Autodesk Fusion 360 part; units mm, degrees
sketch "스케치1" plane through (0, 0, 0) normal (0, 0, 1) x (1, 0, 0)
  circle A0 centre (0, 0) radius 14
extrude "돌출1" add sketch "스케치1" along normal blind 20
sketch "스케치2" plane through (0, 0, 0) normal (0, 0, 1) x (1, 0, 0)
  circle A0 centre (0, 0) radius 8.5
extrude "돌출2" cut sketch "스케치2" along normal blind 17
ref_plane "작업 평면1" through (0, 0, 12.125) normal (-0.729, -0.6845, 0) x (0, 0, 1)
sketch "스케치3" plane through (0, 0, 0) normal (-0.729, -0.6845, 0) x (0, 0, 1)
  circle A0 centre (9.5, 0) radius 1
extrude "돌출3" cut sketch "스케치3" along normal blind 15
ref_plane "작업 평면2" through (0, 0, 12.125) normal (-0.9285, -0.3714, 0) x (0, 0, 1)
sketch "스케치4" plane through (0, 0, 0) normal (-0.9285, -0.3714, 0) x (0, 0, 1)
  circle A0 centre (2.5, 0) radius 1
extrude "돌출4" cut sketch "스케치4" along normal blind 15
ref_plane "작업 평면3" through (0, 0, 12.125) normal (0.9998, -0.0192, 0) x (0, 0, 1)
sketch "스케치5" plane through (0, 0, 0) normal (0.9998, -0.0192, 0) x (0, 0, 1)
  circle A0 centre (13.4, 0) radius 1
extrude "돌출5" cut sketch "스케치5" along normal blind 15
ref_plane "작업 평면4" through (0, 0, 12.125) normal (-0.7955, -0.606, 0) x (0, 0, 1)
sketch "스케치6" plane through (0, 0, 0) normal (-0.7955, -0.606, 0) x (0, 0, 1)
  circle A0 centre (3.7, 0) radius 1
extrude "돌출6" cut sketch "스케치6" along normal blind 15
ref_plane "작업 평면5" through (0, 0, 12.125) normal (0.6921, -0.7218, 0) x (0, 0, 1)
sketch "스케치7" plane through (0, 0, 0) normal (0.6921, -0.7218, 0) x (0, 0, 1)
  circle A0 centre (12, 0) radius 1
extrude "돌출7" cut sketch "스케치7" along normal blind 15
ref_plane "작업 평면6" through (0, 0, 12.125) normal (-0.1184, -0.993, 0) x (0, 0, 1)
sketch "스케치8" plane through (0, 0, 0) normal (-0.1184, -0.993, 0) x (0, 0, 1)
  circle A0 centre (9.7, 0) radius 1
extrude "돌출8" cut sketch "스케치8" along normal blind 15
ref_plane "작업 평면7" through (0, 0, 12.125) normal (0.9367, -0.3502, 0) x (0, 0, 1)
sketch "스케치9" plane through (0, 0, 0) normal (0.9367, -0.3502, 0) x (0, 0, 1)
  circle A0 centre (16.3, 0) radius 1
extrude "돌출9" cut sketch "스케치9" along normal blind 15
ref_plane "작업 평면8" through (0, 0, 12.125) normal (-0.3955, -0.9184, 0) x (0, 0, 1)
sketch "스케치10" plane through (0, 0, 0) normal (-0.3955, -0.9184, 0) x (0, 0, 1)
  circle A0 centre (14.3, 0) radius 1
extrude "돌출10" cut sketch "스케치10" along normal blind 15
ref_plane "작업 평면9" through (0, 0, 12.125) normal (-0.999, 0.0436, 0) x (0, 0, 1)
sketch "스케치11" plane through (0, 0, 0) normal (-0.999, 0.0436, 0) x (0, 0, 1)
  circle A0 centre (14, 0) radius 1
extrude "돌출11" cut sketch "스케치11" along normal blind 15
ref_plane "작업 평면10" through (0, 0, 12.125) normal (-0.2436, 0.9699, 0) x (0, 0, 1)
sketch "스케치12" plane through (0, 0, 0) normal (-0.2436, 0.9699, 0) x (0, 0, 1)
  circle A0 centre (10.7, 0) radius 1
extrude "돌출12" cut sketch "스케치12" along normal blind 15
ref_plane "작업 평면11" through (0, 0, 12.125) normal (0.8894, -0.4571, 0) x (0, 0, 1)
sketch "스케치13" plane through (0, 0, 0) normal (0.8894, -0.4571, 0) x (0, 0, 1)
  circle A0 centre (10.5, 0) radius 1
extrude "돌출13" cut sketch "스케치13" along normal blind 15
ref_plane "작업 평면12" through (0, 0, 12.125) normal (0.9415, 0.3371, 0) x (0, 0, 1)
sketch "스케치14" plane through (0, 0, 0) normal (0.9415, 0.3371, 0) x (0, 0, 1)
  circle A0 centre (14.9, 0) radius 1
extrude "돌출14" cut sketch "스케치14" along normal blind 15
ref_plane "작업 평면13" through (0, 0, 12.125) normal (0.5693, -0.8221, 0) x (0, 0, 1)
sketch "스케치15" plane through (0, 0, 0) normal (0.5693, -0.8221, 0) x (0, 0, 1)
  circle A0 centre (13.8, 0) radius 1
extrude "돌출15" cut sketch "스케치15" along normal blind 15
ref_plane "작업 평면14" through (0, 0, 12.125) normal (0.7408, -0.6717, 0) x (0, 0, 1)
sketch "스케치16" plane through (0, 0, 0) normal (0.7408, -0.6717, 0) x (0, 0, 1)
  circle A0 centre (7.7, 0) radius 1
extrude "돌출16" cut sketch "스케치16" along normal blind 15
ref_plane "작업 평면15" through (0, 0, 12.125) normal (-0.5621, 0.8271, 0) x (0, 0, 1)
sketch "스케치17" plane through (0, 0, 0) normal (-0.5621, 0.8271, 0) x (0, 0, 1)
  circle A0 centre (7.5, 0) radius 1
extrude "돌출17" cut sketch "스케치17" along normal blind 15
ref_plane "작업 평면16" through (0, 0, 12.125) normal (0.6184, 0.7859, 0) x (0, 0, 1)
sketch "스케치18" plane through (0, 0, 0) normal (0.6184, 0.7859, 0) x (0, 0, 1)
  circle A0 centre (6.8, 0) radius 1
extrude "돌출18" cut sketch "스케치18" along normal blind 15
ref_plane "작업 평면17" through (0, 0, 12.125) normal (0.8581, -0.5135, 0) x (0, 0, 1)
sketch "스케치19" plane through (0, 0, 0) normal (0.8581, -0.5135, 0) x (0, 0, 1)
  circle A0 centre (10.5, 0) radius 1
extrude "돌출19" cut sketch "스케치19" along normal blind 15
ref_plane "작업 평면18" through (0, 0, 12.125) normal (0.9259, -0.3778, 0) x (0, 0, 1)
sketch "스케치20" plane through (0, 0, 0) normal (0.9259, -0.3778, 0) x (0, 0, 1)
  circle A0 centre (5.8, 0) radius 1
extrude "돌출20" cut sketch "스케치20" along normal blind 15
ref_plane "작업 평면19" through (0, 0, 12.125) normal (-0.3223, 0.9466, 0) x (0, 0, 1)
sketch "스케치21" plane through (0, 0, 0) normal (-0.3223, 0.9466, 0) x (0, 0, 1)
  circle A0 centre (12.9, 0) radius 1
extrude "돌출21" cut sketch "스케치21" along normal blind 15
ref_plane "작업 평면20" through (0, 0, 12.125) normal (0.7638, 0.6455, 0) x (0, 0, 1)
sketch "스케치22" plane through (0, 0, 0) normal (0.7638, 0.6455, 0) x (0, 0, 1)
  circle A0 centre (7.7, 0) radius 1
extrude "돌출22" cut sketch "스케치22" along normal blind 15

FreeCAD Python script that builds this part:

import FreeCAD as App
import Part
import Sketcher
from FreeCAD import Vector
Q = App.Units.Quantity

doc = App.newDocument("Part")
params = doc.addObject("Spreadsheet::Sheet", "Params")
for row, (alias, value) in enumerate([
    ("sketch1_diameter", "28 mm"),
    ("pad1_length", "20 mm"),
    ("sketch2_diameter", "17 mm"),
    ("pocket1_length", "17 mm"),
    ("sketch3_diameter", "2 mm"),
    ("pocket2_length", "15 mm"),
    ("sketch4_diameter", "2 mm"),
    ("pocket3_length", "15 mm"),
    ("sketch5_diameter", "2 mm"),
    ("pocket4_length", "15 mm"),
    ("sketch6_diameter", "2 mm"),
    ("pocket5_length", "15 mm"),
    ("sketch7_diameter", "2 mm"),
    ("pocket6_length", "15 mm"),
    ("sketch8_diameter", "2 mm"),
    ("pocket7_length", "15 mm"),
    ("sketch9_diameter", "2 mm"),
    ("pocket8_length", "15 mm"),
    ("sketch10_diameter", "2 mm"),
    ("pocket9_length", "15 mm"),
    ("sketch11_diameter", "2 mm"),
    ("pocket10_length", "15 mm"),
    ("sketch12_diameter", "2 mm"),
    ("pocket11_length", "15 mm"),
    ("sketch13_diameter", "2 mm"),
    ("pocket12_length", "15 mm"),
    ("sketch14_diameter", "2 mm"),
    ("pocket13_length", "15 mm"),
    ("sketch15_diameter", "2 mm"),
    ("pocket14_length", "15 mm"),
    ("sketch16_diameter", "2 mm"),
    ("pocket15_length", "15 mm"),
    ("sketch17_diameter", "2 mm"),
    ("pocket16_length", "15 mm"),
    ("sketch18_diameter", "2 mm"),
    ("pocket17_length", "15 mm"),
    ("sketch19_diameter", "2 mm"),
    ("pocket18_length", "15 mm"),
    ("sketch20_diameter", "2 mm"),
    ("pocket19_length", "15 mm"),
    ("sketch21_diameter", "2 mm"),
    ("pocket20_length", "15 mm"),
    ("sketch22_diameter", "2 mm"),
    ("pocket21_length", "15 mm"),
], start=1):
    params.set(f"A{row}", alias)
    params.set(f"B{row}", "=" + value)
    params.setAlias(f"B{row}", alias)

body = doc.addObject("PartDesign::Body", "Body")

sketch1 = body.newObject("Sketcher::SketchObject", "Sketch")
sketch1.AttachmentSupport = (doc.getObject("XY_Plane"), [""])
sketch1.MapMode = "FlatFace"
sketch1.addGeometry(Part.Circle(Vector(0, 0, 0), Vector(0, 0, 1), 14), False)
sketch1.addConstraint([
    Sketcher.Constraint("Coincident", 0, 3, -1, 1),
    Sketcher.Constraint("Diameter", 0, Q("28 mm")),
])
sketch1.setExpression("Constraints[1]", "Params.sketch1_diameter")
pad1 = body.newObject("PartDesign::Pad", "Pad")
pad1.Profile = sketch1
pad1.setExpression("Length", "Params.pad1_length")

sketch2 = body.newObject("Sketcher::SketchObject", "Sketch001")
sketch2.AttachmentSupport = (doc.getObject("XY_Plane"), [""])
sketch2.MapMode = "FlatFace"
sketch2.addGeometry(Part.Circle(Vector(0, 0, 0), Vector(0, 0, 1), 8), False)
sketch2.addConstraint([
    Sketcher.Constraint("Coincident", 0, 3, -1, 1),
    Sketcher.Constraint("Diameter", 0, Q("17 mm")),
])
sketch2.setExpression("Constraints[1]", "Params.sketch2_diameter")
pocket1 = body.newObject("PartDesign::Pocket", "Pocket")
pocket1.Profile = sketch2
pocket1.setExpression("Length", "Params.pocket1_length")
pocket1.Reversed = True

sketch3 = body.newObject("Sketcher::SketchObject", "Sketch002")
sketch3.Placement = App.Placement(Vector(0, 0, 0), App.Rotation(Vector(0, 0, 1), Vector(-0.684506417, 0.729006834, 0), Vector(-0.729006834, -0.684506417, 0), "ZXY"))
sketch3.addGeometry(Part.Circle(Vector(9.5, 0, 0), Vector(0, 0, 1), 1), False)
sketch3.addConstraint([
    Sketcher.Constraint("PointOnObject", 0, 3, -1),
    Sketcher.Constraint("Diameter", 0, Q("2 mm")),
    Sketcher.Constraint("DistanceX", -1, 1, 0, 3, Q("9.5 mm")),
])
sketch3.setExpression("Constraints[1]", "Params.sketch3_diameter")
pocket2 = body.newObject("PartDesign::Pocket", "Pocket001")
pocket2.Profile = sketch3
pocket2.setExpression("Length", "Params.pocket2_length")
pocket2.Reversed = True

sketch4 = body.newObject("Sketcher::SketchObject", "Sketch003")
sketch4.Placement = App.Placement(Vector(0, 0, 0), App.Rotation(Vector(0, 0, 1), Vector(-0.371390676, 0.928476691, 0), Vector(-0.928476691, -0.371390676, 0), "ZXY"))
sketch4.addGeometry(Part.Circle(Vector(2.5, 0, 0), Vector(0, 0, 1), 1), False)
sketch4.addConstraint([
    Sketcher.Constraint("PointOnObject", 0, 3, -1),
    Sketcher.Constraint("Diameter", 0, Q("2 mm")),
    Sketcher.Constraint("DistanceX", -1, 1, 0, 3, Q("2.5 mm")),
])
sketch4.setExpression("Constraints[1]", "Params.sketch4_diameter")
pocket3 = body.newObject("PartDesign::Pocket", "Pocket002")
pocket3.Profile = sketch4
pocket3.setExpression("Length", "Params.pocket3_length")
pocket3.Reversed = True

sketch5 = body.newObject("Sketcher::SketchObject", "Sketch004")
sketch5.Placement = App.Placement(Vector(0, 0, 0), App.Rotation(Vector(0, 0, 1), Vector(-0.019200301, -0.999815657, 0), Vector(0.999815657, -0.019200301, 0), "ZXY"))
sketch5.addGeometry(Part.Circle(Vector(13.4, 0, 0), Vector(0, 0, 1), 1), False)
sketch5.addConstraint([
    Sketcher.Constraint("PointOnObject", 0, 3, -1),
    Sketcher.Constraint("Diameter", 0, Q("2 mm")),
    Sketcher.Constraint("DistanceX", -1, 1, 0, 3, Q("13.4 mm")),
])
sketch5.setExpression("Constraints[1]", "Params.sketch5_diameter")
pocket4 = body.newObject("PartDesign::Pocket", "Pocket003")
pocket4.Profile = sketch5
pocket4.setExpression("Length", "Params.pocket4_length")
pocket4.Reversed = True

sketch6 = body.newObject("Sketcher::SketchObject", "Sketch005")
sketch6.Placement = App.Placement(Vector(0, 0, 0), App.Rotation(Vector(0, 0, 1), Vector(-0.605982957, 0.795477628, 0), Vector(-0.795477628, -0.605982957, 0), "ZXY"))
sketch6.addGeometry(Part.Circle(Vector(3.7, 0, 0), Vector(0, 0, 1), 1), False)
sketch6.addConstraint([
    Sketcher.Constraint("PointOnObject", 0, 3, -1),
    Sketcher.Constraint("Diameter", 0, Q("2 mm")),
    Sketcher.Constraint("DistanceX", -1, 1, 0, 3, Q("3.7 mm")),
])
sketch6.setExpression("Constraints[1]", "Params.sketch6_diameter")
pocket5 = body.newObject("PartDesign::Pocket", "Pocket004")
pocket5.Profile = sketch6
pocket5.setExpression("Length", "Params.pocket5_length")
pocket5.Reversed = True

sketch7 = body.newObject("Sketcher::SketchObject", "Sketch006")
sketch7.Placement = App.Placement(Vector(0, 0, 0), App.Rotation(Vector(0, 0, 1), Vector(-0.721800848, -0.692100813, 0), Vector(0.692100813, -0.721800848, 0), "ZXY"))
sketch7.addGeometry(Part.Circle(Vector(12, 0, 0), Vector(0, 0, 1), 1), False)
sketch7.addConstraint([
    Sketcher.Constraint("PointOnObject", 0, 3, -1),
    Sketcher.Constraint("Diameter", 0, Q("2 mm")),
    Sketcher.Constraint("DistanceX", -1, 1, 0, 3, Q("12 mm")),
])
sketch7.setExpression("Constraints[1]", "Params.sketch7_diameter")
pocket6 = body.newObject("PartDesign::Pocket", "Pocket005")
pocket6.Profile = sketch7
pocket6.setExpression("Length", "Params.pocket6_length")
pocket6.Reversed = True

sketch8 = body.newObject("Sketcher::SketchObject", "Sketch007")
sketch8.Placement = App.Placement(Vector(0, 0, 0), App.Rotation(Vector(0, 0, 1), Vector(-0.992966458, 0.118396001, 0), Vector(-0.118396001, -0.992966458, 0), "ZXY"))
sketch8.addGeometry(Part.Circle(Vector(9.7, 0, 0), Vector(0, 0, 1), 1), False)
sketch8.addConstraint([
    Sketcher.Constraint("PointOnObject", 0, 3, -1),
    Sketcher.Constraint("Diameter", 0, Q("2 mm")),
    Sketcher.Constraint("DistanceX", -1, 1, 0, 3, Q("9.7 mm")),
])
sketch8.setExpression("Constraints[1]", "Params.sketch8_diameter")
pocket7 = body.newObject("PartDesign::Pocket", "Pocket006")
pocket7.Profile = sketch8
pocket7.setExpression("Length", "Params.pocket7_length")
pocket7.Reversed = True

sketch9 = body.newObject("Sketcher::SketchObject", "Sketch008")
sketch9.Placement = App.Placement(Vector(0, 0, 0), App.Rotation(Vector(0, 0, 1), Vector(-0.350207381, -0.936672189, 0), Vector(0.936672189, -0.350207381, 0), "ZXY"))
sketch9.addGeometry(Part.Circle(Vector(16.3, 0, 0), Vector(0, 0, 1), 1), False)
sketch9.addConstraint([
    Sketcher.Constraint("PointOnObject", 0, 3, -1),
    Sketcher.Constraint("Diameter", 0, Q("2 mm")),
    Sketcher.Constraint("DistanceX", -1, 1, 0, 3, Q("16.3 mm")),
])
sketch9.setExpression("Constraints[1]", "Params.sketch9_diameter")
pocket8 = body.newObject("PartDesign::Pocket", "Pocket007")
pocket8.Profile = sketch9
pocket8.setExpression("Length", "Params.pocket8_length")
pocket8.Reversed = True

sketch10 = body.newObject("Sketcher::SketchObject", "Sketch009")
sketch10.Placement = App.Placement(Vector(0, 0, 0), App.Rotation(Vector(0, 0, 1), Vector(-0.918455656, 0.395523968, 0), Vector(-0.395523968, -0.918455656, 0), "ZXY"))
sketch10.addGeometry(Part.Circle(Vector(14.3, 0, 0), Vector(0, 0, 1), 1), False)
sketch10.addConstraint([
    Sketcher.Constraint("PointOnObject", 0, 3, -1),
    Sketcher.Constraint("Diameter", 0, Q("2 mm")),
    Sketcher.Constraint("DistanceX", -1, 1, 0, 3, Q("14.3 mm")),
])
sketch10.setExpression("Constraints[1]", "Params.sketch10_diameter")
pocket9 = body.newObject("PartDesign::Pocket", "Pocket008")
pocket9.Profile = sketch10
pocket9.setExpression("Length", "Params.pocket9_length")
pocket9.Reversed = True

sketch11 = body.newObject("Sketcher::SketchObject", "Sketch010")
sketch11.Placement = App.Placement(Vector(0, 0, 0), App.Rotation(Vector(0, 0, 1), Vector(0.043619387, 0.999048222, 0), Vector(-0.999048222, 0.043619387, 0), "ZXY"))
sketch11.addGeometry(Part.Circle(Vector(14, 0, 0), Vector(0, 0, 1), 1), False)
sketch11.addConstraint([
    Sketcher.Constraint("PointOnObject", 0, 3, -1),
    Sketcher.Constraint("Diameter", 0, Q("2 mm")),
    Sketcher.Constraint("DistanceX", -1, 1, 0, 3, Q("14 mm")),
])
sketch11.setExpression("Constraints[1]", "Params.sketch11_diameter")
pocket10 = body.newObject("PartDesign::Pocket", "Pocket009")
pocket10.Profile = sketch11
pocket10.setExpression("Length", "Params.pocket10_length")
pocket10.Reversed = True

sketch12 = body.newObject("Sketcher::SketchObject", "Sketch011")
sketch12.Placement = App.Placement(Vector(0, 0, 0), App.Rotation(Vector(0, 0, 1), Vector(0.969877223, 0.243594279, 0), Vector(-0.243594279, 0.969877223, 0), "ZXY"))
sketch12.addGeometry(Part.Circle(Vector(10.7, 0, 0), Vector(0, 0, 1), 1), False)
sketch12.addConstraint([
    Sketcher.Constraint("PointOnObject", 0, 3, -1),
    Sketcher.Constraint("Diameter", 0, Q("2 mm")),
    Sketcher.Constraint("DistanceX", -1, 1, 0, 3, Q("10.7 mm")),
])
sketch12.setExpression("Constraints[1]", "Params.sketch12_diameter")
pocket11 = body.newObject("PartDesign::Pocket", "Pocket010")
pocket11.Profile = sketch12
pocket11.setExpression("Length", "Params.pocket11_length")
pocket11.Reversed = True

sketch13 = body.newObject("Sketcher::SketchObject", "Sketch012")
sketch13.Placement = App.Placement(Vector(0, 0, 0), App.Rotation(Vector(0, 0, 1), Vector(-0.457106224, -0.889412109, 0), Vector(0.889412109, -0.457106224, 0), "ZXY"))
sketch13.addGeometry(Part.Circle(Vector(10.5, 0, 0), Vector(0, 0, 1), 1), False)
sketch13.addConstraint([
    Sketcher.Constraint("PointOnObject", 0, 3, -1),
    Sketcher.Constraint("Diameter", 0, Q("2 mm")),
    Sketcher.Constraint("DistanceX", -1, 1, 0, 3, Q("10.5 mm")),
])
sketch13.setExpression("Constraints[1]", "Params.sketch13_diameter")
pocket12 = body.newObject("PartDesign::Pocket", "Pocket011")
pocket12.Profile = sketch13
pocket12.setExpression("Length", "Params.pocket12_length")
pocket12.Reversed = True

sketch14 = body.newObject("Sketcher::SketchObject", "Sketch013")
sketch14.Placement = App.Placement(Vector(0, 0, 0), App.Rotation(Vector(0, 0, 1), Vector(0.337090113, -0.941472387, 0), Vector(0.941472387, 0.337090113, 0), "ZXY"))
sketch14.addGeometry(Part.Circle(Vector(14.9, 0, 0), Vector(0, 0, 1), 1), False)
sketch14.addConstraint([
    Sketcher.Constraint("PointOnObject", 0, 3, -1),
    Sketcher.Constraint("Diameter", 0, Q("2 mm")),
    Sketcher.Constraint("DistanceX", -1, 1, 0, 3, Q("14.9 mm")),
])
sketch14.setExpression("Constraints[1]", "Params.sketch14_diameter")
pocket13 = body.newObject("PartDesign::Pocket", "Pocket012")
pocket13.Profile = sketch14
pocket13.setExpression("Length", "Params.pocket13_length")
pocket13.Reversed = True

sketch15 = body.newObject("Sketcher::SketchObject", "Sketch014")
sketch15.Placement = App.Placement(Vector(0, 0, 0), App.Rotation(Vector(0, 0, 1), Vector(-0.822120183, -0.569313977, 0), Vector(0.569313977, -0.822120183, 0), "ZXY"))
sketch15.addGeometry(Part.Circle(Vector(13.8, 0, 0), Vector(0, 0, 1), 1), False)
sketch15.addConstraint([
    Sketcher.Constraint("PointOnObject", 0, 3, -1),
    Sketcher.Constraint("Diameter", 0, Q("2 mm")),
    Sketcher.Constraint("DistanceX", -1, 1, 0, 3, Q("13.8 mm")),
])
sketch15.setExpression("Constraints[1]", "Params.sketch15_diameter")
pocket14 = body.newObject("PartDesign::Pocket", "Pocket013")
pocket14.Profile = sketch15
pocket14.setExpression("Length", "Params.pocket14_length")
pocket14.Reversed = True

sketch16 = body.newObject("Sketcher::SketchObject", "Sketch015")
sketch16.Placement = App.Placement(Vector(0, 0, 0), App.Rotation(Vector(0, 0, 1), Vector(-0.671711577, -0.740812768, 0), Vector(0.740812768, -0.671711577, 0), "ZXY"))
sketch16.addGeometry(Part.Circle(Vector(7.7, 0, 0), Vector(0, 0, 1), 1), False)
sketch16.addConstraint([
    Sketcher.Constraint("PointOnObject", 0, 3, -1),
    Sketcher.Constraint("Diameter", 0, Q("2 mm")),
    Sketcher.Constraint("DistanceX", -1, 1, 0, 3, Q("7.7 mm")),
])
sketch16.setExpression("Constraints[1]", "Params.sketch16_diameter")
pocket15 = body.newObject("PartDesign::Pocket", "Pocket014")
pocket15.Profile = sketch16
pocket15.setExpression("Length", "Params.pocket15_length")
pocket15.Reversed = True

sketch17 = body.newObject("Sketcher::SketchObject", "Sketch016")
sketch17.Placement = App.Placement(Vector(0, 0, 0), App.Rotation(Vector(0, 0, 1), Vector(0.827078984, 0.562085718, 0), Vector(-0.562085718, 0.827078984, 0), "ZXY"))
sketch17.addGeometry(Part.Circle(Vector(7.5, 0, 0), Vector(0, 0, 1), 1), False)
sketch17.addConstraint([
    Sketcher.Constraint("PointOnObject", 0, 3, -1),
    Sketcher.Constraint("Diameter", 0, Q("2 mm")),
    Sketcher.Constraint("DistanceX", -1, 1, 0, 3, Q("7.5 mm")),
])
sketch17.setExpression("Constraints[1]", "Params.sketch17_diameter")
pocket16 = body.newObject("PartDesign::Pocket", "Pocket015")
pocket16.Profile = sketch17
pocket16.setExpression("Length", "Params.pocket16_length")
pocket16.Reversed = True

sketch18 = body.newObject("Sketcher::SketchObject", "Sketch017")
sketch18.Placement = App.Placement(Vector(0, 0, 0), App.Rotation(Vector(0, 0, 1), Vector(0.785877457, -0.618382262, 0), Vector(0.618382262, 0.785877457, 0), "ZXY"))
sketch18.addGeometry(Part.Circle(Vector(6.8, 0, 0), Vector(0, 0, 1), 1), False)
sketch18.addConstraint([
    Sketcher.Constraint("PointOnObject", 0, 3, -1),
    Sketcher.Constraint("Diameter", 0, Q("2 mm")),
    Sketcher.Constraint("DistanceX", -1, 1, 0, 3, Q("6.8 mm")),
])
sketch18.setExpression("Constraints[1]", "Params.sketch18_diameter")
pocket17 = body.newObject("PartDesign::Pocket", "Pocket016")
pocket17.Profile = sketch18
pocket17.setExpression("Length", "Params.pocket17_length")
pocket17.Reversed = True

sketch19 = body.newObject("Sketcher::SketchObject", "Sketch018")
sketch19.Placement = App.Placement(Vector(0, 0, 0), App.Rotation(Vector(0, 0, 1), Vector(-0.513495415, -0.858092337, 0), Vector(0.858092337, -0.513495415, 0), "ZXY"))
sketch19.addGeometry(Part.Circle(Vector(10.5, 0, 0), Vector(0, 0, 1), 1), False)
sketch19.addConstraint([
    Sketcher.Constraint("PointOnObject", 0, 3, -1),
    Sketcher.Constraint("Diameter", 0, Q("2 mm")),
    Sketcher.Constraint("DistanceX", -1, 1, 0, 3, Q("10.5 mm")),
])
sketch19.setExpression("Constraints[1]", "Params.sketch19_diameter")
pocket18 = body.newObject("PartDesign::Pocket", "Pocket017")
pocket18.Profile = sketch19
pocket18.setExpression("Length", "Params.pocket18_length")
pocket18.Reversed = True

sketch20 = body.newObject("Sketcher::SketchObject", "Sketch019")
sketch20.Placement = App.Placement(Vector(0, 0, 0), App.Rotation(Vector(0, 0, 1), Vector(-0.377795533, -0.925889051, 0), Vector(0.925889051, -0.377795533, 0), "ZXY"))
sketch20.addGeometry(Part.Circle(Vector(5.8, 0, 0), Vector(0, 0, 1), 1), False)
sketch20.addConstraint([
    Sketcher.Constraint("PointOnObject", 0, 3, -1),
    Sketcher.Constraint("Diameter", 0, Q("2 mm")),
    Sketcher.Constraint("DistanceX", -1, 1, 0, 3, Q("5.8 mm")),
])
sketch20.setExpression("Constraints[1]", "Params.sketch20_diameter")
pocket19 = body.newObject("PartDesign::Pocket", "Pocket018")
pocket19.Profile = sketch20
pocket19.setExpression("Length", "Params.pocket19_length")
pocket19.Reversed = True

sketch21 = body.newObject("Sketcher::SketchObject", "Sketch020")
sketch21.Placement = App.Placement(Vector(0, 0, 0), App.Rotation(Vector(0, 0, 1), Vector(0.946633677, 0.322311466, 0), Vector(-0.322311466, 0.946633677, 0), "ZXY"))
sketch21.addGeometry(Part.Circle(Vector(12.9, 0, 0), Vector(0, 0, 1), 1), False)
sketch21.addConstraint([
    Sketcher.Constraint("PointOnObject", 0, 3, -1),
    Sketcher.Constraint("Diameter", 0, Q("2 mm")),
    Sketcher.Constraint("DistanceX", -1, 1, 0, 3, Q("12.9 mm")),
])
sketch21.setExpression("Constraints[1]", "Params.sketch21_diameter")
pocket20 = body.newObject("PartDesign::Pocket", "Pocket019")
pocket20.Profile = sketch21
pocket20.setExpression("Length", "Params.pocket20_length")
pocket20.Reversed = True

sketch22 = body.newObject("Sketcher::SketchObject", "Sketch021")
sketch22.Placement = App.Placement(Vector(0, 0, 0), App.Rotation(Vector(0, 0, 1), Vector(0.645480413, -0.763776824, 0), Vector(0.763776824, 0.645480413, 0), "ZXY"))
sketch22.addGeometry(Part.Circle(Vector(7.7, 0, 0), Vector(0, 0, 1), 1), False)
sketch22.addConstraint([
    Sketcher.Constraint("PointOnObject", 0, 3, -1),
    Sketcher.Constraint("Diameter", 0, Q("2 mm")),
    Sketcher.Constraint("DistanceX", -1, 1, 0, 3, Q("7.7 mm")),
])
sketch22.setExpression("Constraints[1]", "Params.sketch22_diameter")
pocket21 = body.newObject("PartDesign::Pocket", "Pocket020")
pocket21.Profile = sketch22
pocket21.setExpression("Length", "Params.pocket21_length")
pocket21.Reversed = True

doc.recompute()
